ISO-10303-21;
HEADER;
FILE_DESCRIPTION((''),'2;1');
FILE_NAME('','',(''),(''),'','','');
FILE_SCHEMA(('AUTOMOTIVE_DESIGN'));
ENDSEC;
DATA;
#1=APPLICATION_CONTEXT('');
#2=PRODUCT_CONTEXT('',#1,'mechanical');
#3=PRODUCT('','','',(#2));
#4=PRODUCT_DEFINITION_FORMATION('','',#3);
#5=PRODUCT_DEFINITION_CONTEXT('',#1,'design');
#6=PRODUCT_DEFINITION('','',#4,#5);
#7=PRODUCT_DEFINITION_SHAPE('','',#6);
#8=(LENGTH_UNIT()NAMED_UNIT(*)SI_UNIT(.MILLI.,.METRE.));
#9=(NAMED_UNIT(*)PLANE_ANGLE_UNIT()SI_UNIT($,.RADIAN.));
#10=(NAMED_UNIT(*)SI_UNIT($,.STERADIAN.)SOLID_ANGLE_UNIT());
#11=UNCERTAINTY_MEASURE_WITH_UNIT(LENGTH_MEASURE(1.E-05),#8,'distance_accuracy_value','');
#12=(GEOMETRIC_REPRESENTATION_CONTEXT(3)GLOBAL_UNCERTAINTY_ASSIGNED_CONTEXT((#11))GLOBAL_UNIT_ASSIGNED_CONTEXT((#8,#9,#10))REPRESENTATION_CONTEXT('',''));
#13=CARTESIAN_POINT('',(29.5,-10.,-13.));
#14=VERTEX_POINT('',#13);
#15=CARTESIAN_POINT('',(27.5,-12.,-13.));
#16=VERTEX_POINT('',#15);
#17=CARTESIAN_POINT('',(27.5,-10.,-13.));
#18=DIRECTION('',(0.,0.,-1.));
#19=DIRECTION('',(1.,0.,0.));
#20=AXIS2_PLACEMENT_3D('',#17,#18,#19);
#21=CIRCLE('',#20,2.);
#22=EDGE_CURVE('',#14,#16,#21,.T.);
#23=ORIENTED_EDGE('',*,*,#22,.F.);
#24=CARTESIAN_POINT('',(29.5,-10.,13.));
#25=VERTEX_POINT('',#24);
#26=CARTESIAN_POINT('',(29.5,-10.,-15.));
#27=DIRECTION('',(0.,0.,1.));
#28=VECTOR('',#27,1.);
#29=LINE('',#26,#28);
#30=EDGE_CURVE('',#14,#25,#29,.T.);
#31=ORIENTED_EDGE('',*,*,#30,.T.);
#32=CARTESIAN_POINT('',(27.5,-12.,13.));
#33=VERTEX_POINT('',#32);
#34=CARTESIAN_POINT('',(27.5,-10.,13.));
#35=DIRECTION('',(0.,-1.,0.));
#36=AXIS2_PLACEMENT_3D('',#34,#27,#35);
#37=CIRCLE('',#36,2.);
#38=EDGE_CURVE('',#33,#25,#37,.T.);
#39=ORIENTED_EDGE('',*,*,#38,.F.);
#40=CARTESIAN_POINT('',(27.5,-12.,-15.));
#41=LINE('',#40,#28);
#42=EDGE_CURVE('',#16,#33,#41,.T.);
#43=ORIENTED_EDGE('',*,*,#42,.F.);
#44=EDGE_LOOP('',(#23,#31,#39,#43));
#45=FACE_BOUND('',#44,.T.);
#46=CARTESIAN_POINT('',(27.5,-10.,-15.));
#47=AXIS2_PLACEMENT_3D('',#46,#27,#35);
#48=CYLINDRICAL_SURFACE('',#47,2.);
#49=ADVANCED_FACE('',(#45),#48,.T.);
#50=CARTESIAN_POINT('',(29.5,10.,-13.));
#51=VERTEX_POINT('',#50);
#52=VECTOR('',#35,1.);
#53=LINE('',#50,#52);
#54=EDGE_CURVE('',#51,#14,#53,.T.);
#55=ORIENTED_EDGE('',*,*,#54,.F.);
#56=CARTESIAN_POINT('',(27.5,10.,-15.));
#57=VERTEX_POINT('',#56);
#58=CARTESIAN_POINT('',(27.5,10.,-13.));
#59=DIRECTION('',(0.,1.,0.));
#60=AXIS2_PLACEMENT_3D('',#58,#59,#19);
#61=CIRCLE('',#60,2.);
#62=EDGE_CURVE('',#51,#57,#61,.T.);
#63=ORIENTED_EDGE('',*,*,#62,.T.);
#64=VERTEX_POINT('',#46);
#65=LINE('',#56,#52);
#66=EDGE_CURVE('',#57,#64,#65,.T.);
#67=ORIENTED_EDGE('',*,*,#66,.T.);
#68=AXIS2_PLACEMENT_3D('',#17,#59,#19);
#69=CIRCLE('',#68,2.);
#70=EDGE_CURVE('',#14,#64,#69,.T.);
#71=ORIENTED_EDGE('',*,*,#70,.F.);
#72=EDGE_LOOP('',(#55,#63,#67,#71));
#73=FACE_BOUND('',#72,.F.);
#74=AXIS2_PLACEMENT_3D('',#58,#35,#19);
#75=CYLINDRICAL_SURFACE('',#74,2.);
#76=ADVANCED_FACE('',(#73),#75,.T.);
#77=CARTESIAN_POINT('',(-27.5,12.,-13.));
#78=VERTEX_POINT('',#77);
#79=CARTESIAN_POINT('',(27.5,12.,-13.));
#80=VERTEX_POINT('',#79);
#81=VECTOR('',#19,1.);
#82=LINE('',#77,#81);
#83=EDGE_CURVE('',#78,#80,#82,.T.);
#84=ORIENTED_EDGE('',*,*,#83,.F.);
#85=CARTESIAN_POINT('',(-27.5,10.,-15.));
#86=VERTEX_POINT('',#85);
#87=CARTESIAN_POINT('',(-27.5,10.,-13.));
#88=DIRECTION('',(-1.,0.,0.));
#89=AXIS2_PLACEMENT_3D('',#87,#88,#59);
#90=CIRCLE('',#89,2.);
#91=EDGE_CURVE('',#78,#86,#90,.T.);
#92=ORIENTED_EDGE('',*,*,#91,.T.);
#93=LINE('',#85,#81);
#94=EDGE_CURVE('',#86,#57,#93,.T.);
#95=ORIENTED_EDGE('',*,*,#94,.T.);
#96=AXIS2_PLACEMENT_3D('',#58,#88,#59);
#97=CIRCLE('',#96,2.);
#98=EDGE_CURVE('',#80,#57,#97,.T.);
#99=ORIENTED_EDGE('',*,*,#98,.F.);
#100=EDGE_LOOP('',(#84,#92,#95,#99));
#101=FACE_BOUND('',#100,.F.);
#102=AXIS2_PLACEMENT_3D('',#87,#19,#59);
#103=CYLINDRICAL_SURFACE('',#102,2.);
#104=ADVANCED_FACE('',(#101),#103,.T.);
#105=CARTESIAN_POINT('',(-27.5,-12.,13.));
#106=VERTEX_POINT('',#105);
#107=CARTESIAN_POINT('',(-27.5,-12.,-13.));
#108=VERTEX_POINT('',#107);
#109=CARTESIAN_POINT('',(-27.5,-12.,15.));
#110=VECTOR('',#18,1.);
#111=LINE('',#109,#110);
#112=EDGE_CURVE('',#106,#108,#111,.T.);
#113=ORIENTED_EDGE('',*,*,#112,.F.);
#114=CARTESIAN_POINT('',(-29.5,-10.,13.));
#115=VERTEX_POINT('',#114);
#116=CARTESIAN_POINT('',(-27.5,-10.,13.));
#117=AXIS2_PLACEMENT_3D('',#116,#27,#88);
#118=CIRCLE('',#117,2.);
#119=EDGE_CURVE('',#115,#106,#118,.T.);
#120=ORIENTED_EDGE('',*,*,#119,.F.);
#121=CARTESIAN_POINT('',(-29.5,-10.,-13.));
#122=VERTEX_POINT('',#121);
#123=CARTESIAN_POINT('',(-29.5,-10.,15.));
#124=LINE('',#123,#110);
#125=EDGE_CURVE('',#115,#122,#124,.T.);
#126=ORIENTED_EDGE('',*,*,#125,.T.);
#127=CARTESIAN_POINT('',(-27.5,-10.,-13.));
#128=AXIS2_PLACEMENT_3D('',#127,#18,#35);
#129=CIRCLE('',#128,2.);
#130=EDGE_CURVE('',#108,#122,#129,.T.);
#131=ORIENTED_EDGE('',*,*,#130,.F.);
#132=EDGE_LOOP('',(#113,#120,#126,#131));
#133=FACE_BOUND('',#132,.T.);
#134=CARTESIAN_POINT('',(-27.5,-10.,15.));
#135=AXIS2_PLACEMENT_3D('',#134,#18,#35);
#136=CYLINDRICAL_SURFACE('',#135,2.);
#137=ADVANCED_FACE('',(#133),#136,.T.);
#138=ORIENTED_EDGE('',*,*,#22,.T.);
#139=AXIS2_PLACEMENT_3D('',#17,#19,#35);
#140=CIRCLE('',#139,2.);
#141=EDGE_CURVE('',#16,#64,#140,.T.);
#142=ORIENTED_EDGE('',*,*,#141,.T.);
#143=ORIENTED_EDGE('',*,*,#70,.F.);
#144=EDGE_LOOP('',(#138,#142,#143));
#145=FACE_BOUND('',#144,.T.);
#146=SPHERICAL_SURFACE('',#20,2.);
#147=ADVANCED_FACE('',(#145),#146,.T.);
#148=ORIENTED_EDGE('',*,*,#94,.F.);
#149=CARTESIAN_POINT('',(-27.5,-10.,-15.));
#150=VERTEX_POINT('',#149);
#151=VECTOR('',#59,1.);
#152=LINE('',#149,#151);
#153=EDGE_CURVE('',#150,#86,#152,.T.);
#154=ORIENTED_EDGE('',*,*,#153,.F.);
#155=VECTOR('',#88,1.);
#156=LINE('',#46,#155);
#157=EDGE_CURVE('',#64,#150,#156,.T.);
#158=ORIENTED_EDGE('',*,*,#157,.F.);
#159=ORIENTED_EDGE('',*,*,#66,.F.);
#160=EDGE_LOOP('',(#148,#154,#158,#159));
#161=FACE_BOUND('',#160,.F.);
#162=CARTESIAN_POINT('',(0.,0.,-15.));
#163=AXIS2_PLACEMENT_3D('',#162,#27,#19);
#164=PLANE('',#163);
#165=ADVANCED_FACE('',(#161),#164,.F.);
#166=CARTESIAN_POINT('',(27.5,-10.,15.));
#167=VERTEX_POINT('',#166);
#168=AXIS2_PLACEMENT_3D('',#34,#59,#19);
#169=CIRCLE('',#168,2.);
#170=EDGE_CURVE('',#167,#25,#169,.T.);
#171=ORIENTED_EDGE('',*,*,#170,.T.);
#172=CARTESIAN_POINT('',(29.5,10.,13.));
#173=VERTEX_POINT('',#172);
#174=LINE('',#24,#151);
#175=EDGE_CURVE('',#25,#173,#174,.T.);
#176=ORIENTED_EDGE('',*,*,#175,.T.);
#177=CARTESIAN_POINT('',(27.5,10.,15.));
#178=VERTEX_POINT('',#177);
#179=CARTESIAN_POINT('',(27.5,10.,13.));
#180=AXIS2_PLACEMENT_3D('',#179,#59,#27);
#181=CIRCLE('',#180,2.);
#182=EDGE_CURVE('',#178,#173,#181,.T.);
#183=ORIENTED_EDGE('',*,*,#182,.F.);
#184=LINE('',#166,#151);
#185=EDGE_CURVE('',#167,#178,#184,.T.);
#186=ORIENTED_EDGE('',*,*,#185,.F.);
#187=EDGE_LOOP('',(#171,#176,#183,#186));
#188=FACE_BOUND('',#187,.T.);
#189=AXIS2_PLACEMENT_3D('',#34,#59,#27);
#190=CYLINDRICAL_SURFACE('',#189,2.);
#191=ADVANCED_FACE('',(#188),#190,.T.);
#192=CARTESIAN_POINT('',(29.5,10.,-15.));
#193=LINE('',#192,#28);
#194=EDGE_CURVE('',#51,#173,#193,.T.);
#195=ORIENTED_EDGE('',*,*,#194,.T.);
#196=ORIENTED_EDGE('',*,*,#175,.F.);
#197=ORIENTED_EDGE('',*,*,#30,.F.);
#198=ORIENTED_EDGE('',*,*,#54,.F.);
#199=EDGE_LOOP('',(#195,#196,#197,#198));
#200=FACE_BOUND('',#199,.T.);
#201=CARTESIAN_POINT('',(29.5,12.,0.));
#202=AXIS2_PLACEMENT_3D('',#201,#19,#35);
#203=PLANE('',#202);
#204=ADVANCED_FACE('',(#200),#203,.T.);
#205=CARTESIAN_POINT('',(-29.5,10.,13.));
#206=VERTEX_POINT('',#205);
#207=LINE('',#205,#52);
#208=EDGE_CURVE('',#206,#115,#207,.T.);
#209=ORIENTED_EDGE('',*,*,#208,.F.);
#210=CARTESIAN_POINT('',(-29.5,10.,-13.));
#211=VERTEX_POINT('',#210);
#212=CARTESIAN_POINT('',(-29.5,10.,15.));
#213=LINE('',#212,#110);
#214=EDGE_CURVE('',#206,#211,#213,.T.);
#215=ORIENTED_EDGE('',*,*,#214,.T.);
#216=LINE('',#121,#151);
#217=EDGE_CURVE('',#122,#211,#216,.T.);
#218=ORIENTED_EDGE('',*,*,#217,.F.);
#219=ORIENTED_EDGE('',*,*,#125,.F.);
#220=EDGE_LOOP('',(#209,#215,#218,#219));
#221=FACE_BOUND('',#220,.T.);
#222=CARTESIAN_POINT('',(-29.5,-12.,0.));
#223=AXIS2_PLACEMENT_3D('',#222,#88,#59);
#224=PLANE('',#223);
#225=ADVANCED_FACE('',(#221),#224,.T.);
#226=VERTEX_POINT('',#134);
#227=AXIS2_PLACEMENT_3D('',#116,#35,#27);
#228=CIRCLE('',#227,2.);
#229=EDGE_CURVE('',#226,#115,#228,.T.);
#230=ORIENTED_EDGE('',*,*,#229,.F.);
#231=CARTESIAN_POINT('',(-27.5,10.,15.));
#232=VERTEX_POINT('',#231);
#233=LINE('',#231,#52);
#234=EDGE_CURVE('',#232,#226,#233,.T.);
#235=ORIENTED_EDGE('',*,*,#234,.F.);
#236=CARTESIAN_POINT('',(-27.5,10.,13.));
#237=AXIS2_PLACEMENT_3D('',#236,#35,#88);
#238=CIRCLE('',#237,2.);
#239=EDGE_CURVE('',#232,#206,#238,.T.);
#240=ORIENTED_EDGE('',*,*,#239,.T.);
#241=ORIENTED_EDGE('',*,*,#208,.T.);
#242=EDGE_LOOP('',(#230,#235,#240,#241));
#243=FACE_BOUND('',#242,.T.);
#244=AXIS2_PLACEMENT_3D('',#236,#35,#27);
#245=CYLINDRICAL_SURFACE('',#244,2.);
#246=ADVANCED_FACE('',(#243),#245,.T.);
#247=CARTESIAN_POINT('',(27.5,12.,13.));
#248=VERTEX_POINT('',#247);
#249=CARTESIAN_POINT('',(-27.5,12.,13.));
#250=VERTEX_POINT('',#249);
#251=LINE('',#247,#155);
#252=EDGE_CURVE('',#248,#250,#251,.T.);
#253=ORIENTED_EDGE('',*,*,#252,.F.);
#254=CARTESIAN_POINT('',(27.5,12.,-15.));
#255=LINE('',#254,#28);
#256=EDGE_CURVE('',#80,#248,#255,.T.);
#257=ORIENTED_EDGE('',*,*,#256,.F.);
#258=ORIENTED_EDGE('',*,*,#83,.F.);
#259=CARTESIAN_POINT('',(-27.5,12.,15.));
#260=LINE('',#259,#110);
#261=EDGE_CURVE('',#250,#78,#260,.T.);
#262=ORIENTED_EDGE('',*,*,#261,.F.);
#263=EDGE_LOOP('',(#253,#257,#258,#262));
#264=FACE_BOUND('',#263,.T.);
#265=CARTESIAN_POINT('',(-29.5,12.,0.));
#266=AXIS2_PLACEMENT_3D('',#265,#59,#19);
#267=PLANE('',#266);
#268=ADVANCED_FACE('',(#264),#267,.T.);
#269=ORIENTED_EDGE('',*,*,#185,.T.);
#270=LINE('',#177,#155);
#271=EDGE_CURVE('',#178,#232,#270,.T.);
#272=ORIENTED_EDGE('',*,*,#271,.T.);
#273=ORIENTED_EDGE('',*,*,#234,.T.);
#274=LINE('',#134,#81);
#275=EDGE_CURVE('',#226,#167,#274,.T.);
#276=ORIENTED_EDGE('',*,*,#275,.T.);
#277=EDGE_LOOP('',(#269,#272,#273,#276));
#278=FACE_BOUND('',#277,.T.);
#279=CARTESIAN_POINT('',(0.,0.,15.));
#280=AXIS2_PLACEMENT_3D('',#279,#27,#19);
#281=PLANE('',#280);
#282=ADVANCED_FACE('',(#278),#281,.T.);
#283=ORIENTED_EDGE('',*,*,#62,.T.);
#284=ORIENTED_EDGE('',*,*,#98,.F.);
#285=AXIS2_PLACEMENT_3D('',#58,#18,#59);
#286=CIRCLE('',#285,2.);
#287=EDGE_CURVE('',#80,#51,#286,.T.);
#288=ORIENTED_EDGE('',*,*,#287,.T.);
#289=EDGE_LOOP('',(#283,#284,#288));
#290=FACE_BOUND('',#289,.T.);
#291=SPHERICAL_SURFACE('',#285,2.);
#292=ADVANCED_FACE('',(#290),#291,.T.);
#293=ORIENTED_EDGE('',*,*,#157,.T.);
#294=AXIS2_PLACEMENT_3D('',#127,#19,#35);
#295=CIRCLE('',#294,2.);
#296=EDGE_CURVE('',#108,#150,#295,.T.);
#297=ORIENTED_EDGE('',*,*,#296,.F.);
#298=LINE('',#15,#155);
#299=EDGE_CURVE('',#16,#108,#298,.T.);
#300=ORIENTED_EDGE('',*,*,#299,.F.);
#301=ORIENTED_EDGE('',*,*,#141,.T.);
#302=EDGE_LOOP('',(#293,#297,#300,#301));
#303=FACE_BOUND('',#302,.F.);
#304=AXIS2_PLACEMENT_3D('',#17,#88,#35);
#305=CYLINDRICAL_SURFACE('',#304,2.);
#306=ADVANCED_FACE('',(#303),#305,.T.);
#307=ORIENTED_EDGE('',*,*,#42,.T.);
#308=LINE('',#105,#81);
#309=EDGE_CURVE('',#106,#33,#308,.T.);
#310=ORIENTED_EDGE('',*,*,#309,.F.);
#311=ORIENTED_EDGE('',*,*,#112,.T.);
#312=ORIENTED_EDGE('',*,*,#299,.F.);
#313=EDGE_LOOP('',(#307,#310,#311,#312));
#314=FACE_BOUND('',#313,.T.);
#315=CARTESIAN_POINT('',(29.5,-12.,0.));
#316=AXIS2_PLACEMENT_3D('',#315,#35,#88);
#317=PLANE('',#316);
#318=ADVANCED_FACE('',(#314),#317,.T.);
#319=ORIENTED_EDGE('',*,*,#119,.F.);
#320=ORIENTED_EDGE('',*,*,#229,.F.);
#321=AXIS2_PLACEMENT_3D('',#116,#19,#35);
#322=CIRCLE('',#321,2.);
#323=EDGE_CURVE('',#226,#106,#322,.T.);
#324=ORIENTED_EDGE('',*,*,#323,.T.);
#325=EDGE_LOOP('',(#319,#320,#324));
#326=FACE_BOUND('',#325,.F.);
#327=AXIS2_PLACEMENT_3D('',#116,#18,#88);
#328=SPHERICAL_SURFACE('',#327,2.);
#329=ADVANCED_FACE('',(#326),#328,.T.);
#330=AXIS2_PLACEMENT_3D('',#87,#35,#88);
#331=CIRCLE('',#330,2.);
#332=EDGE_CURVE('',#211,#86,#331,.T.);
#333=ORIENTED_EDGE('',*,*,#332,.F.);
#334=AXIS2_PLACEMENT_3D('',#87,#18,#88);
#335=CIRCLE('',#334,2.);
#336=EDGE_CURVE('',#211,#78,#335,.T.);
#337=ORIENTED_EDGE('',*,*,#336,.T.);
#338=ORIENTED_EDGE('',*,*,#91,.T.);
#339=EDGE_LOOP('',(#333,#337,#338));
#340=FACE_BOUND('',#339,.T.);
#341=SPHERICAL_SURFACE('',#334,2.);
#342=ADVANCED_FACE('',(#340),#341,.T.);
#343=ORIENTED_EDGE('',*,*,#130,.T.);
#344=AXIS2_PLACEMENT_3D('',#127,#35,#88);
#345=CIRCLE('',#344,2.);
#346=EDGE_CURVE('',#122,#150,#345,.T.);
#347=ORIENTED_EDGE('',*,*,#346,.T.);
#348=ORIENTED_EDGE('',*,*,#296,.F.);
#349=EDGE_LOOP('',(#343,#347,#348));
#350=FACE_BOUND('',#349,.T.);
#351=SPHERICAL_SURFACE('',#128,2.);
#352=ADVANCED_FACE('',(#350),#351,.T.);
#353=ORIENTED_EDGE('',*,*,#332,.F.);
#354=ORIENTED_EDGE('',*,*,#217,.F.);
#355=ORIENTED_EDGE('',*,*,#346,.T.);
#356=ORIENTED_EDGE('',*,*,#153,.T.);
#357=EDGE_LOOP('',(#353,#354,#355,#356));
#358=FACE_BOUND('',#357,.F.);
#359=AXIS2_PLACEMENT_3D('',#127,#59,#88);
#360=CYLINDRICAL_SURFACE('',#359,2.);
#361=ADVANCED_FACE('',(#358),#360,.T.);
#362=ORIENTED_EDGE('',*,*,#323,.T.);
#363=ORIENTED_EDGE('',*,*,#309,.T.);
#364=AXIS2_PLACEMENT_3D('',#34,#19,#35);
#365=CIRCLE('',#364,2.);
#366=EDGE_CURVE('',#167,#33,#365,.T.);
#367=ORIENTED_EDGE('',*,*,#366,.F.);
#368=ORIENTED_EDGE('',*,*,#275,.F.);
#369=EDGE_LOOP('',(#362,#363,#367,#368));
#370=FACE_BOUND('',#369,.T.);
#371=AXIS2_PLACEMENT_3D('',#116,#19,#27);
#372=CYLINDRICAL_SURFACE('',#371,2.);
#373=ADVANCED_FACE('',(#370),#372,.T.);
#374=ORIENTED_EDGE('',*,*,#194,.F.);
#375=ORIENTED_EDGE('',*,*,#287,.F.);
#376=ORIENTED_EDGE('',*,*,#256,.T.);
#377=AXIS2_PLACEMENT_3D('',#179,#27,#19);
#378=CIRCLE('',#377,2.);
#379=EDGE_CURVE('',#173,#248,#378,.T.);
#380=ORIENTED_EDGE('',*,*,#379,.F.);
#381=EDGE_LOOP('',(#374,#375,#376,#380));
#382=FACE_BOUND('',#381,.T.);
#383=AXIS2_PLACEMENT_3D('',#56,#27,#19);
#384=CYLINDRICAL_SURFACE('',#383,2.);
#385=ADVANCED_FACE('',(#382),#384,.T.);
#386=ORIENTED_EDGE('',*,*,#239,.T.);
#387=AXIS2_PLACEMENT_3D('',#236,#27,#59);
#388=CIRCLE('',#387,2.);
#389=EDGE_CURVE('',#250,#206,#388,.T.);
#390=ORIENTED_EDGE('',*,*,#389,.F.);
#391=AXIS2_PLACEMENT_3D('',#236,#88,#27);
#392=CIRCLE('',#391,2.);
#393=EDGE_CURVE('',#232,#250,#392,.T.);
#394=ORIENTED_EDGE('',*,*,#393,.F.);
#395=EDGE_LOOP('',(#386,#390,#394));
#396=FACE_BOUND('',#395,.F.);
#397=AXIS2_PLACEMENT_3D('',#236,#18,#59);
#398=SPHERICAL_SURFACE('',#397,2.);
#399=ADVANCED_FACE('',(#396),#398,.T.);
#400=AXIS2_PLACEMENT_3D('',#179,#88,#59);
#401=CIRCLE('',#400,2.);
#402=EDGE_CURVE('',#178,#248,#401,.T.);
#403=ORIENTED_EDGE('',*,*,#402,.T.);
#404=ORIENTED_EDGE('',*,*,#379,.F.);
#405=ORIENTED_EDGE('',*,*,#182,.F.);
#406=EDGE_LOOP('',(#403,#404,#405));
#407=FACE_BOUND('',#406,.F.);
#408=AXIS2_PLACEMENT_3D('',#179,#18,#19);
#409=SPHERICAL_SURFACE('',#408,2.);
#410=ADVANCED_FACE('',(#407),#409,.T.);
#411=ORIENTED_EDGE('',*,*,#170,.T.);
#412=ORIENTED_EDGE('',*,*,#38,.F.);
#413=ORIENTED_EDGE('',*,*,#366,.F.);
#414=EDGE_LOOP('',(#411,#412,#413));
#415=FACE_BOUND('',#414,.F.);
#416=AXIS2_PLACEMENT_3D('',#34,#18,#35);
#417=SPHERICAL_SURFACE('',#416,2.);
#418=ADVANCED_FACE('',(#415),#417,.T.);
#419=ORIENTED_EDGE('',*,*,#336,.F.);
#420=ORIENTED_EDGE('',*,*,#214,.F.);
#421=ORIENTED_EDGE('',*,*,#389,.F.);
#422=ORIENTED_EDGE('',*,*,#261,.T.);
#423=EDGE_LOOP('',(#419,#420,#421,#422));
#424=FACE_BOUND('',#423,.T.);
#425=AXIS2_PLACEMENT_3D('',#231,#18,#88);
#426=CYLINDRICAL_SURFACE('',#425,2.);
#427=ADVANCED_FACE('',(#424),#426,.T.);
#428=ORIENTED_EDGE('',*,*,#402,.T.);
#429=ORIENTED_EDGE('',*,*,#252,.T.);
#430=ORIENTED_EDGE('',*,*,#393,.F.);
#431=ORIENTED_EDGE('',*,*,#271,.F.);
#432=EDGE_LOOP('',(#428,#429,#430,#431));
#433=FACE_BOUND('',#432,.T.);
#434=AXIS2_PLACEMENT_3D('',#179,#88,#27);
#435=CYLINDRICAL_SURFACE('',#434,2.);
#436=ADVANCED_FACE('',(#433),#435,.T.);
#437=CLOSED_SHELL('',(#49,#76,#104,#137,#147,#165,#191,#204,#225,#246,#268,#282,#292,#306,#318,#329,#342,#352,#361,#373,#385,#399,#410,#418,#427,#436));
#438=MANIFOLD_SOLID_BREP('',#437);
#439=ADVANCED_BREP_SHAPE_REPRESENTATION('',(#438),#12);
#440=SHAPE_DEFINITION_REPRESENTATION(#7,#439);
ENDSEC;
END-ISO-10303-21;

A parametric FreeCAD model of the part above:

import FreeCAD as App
import Part
import Sketcher

V = App.Vector


def edges_at(feature, points):
    """Names of the edges that pass closest to the given points."""
    edges = feature.Shape.Edges
    near = lambda p: min(range(len(edges)), key=lambda i: edges[i].distToShape(Part.Vertex(*p))[0])
    return sorted({f"Edge{near(p) + 1}" for p in points})


def add_polygon(sketch, points):
    """Adds a closed chain of lines whose ends are joined by coincident constraints."""
    first, n = sketch.GeometryCount, len(points)
    for a, b in zip(points, points[1:] + points[:1]):
        sketch.addGeometry(Part.LineSegment(App.Vector(*a, 0), App.Vector(*b, 0)), False)
    for i in range(n):
        sketch.addConstraint(Sketcher.Constraint("Coincident", first + i, 2, first + (i + 1) % n, 1))

doc = App.newDocument("Part")
body = doc.addObject("PartDesign::Body", "Body")

# Sketch on XY plane
sketch1 = body.newObject("Sketcher::SketchObject", "Sketch")
sketch1.AttachmentSupport = (doc.getObject("XY_Plane"), [""])
sketch1.MapMode = "FlatFace"
add_polygon(sketch1, [(-30, -12), (30, -12), (30, 12), (-30, 12)])  # lines 0-3
sketch1.addConstraint([
    Sketcher.Constraint("Horizontal", 0),
    Sketcher.Constraint("Vertical", 1),
    Sketcher.Constraint("Horizontal", 2),
    Sketcher.Constraint("Vertical", 3),
    Sketcher.Constraint("Symmetric", 0, 2, 2, 2, -1, 1),
    Sketcher.Constraint("DistanceX", 0, 1, 0, 2, 59.0),
    Sketcher.Constraint("DistanceY", 1, 1, 1, 2, 24.0),
])
pad1 = body.newObject("PartDesign::Pad", "Pad")
pad1.Profile = sketch1
pad1.Length = 30
pad1.Midplane = True
doc.recompute()

fillet = body.newObject("PartDesign::Fillet", "Fillet")
fillet.Base = (pad1, edges_at(pad1, [
    (-29.5, -12, 0),
    (29.5, -12, 0),
    (-29.5, 12, 0),
    (29.5, 12, 0),
]))
fillet.Radius = 2
doc.recompute()

fillet2 = body.newObject("PartDesign::Fillet", "Fillet001")
fillet2.Base = (fillet, edges_at(fillet, [
    (28.914, -11.414, 15),
    (29.5, 0, 15),
    (28.914, 11.414, 15),
    (0, 12, 15),
    (-28.914, 11.414, 15),
    (-29.5, 0, 15),
    (-28.914, -11.414, 15),
    (0, -12, 15),
    (-28.914, -11.414, -15),
    (-29.5, 0, -15),
    (-28.914, 11.414, -15),
    (0, 12, -15),
    (28.914, 11.414, -15),
    (29.5, 0, -15),
    (28.914, -11.414, -15),
    (0, -12, -15),
]))
fillet2.Radius = 2

doc.recompute()
